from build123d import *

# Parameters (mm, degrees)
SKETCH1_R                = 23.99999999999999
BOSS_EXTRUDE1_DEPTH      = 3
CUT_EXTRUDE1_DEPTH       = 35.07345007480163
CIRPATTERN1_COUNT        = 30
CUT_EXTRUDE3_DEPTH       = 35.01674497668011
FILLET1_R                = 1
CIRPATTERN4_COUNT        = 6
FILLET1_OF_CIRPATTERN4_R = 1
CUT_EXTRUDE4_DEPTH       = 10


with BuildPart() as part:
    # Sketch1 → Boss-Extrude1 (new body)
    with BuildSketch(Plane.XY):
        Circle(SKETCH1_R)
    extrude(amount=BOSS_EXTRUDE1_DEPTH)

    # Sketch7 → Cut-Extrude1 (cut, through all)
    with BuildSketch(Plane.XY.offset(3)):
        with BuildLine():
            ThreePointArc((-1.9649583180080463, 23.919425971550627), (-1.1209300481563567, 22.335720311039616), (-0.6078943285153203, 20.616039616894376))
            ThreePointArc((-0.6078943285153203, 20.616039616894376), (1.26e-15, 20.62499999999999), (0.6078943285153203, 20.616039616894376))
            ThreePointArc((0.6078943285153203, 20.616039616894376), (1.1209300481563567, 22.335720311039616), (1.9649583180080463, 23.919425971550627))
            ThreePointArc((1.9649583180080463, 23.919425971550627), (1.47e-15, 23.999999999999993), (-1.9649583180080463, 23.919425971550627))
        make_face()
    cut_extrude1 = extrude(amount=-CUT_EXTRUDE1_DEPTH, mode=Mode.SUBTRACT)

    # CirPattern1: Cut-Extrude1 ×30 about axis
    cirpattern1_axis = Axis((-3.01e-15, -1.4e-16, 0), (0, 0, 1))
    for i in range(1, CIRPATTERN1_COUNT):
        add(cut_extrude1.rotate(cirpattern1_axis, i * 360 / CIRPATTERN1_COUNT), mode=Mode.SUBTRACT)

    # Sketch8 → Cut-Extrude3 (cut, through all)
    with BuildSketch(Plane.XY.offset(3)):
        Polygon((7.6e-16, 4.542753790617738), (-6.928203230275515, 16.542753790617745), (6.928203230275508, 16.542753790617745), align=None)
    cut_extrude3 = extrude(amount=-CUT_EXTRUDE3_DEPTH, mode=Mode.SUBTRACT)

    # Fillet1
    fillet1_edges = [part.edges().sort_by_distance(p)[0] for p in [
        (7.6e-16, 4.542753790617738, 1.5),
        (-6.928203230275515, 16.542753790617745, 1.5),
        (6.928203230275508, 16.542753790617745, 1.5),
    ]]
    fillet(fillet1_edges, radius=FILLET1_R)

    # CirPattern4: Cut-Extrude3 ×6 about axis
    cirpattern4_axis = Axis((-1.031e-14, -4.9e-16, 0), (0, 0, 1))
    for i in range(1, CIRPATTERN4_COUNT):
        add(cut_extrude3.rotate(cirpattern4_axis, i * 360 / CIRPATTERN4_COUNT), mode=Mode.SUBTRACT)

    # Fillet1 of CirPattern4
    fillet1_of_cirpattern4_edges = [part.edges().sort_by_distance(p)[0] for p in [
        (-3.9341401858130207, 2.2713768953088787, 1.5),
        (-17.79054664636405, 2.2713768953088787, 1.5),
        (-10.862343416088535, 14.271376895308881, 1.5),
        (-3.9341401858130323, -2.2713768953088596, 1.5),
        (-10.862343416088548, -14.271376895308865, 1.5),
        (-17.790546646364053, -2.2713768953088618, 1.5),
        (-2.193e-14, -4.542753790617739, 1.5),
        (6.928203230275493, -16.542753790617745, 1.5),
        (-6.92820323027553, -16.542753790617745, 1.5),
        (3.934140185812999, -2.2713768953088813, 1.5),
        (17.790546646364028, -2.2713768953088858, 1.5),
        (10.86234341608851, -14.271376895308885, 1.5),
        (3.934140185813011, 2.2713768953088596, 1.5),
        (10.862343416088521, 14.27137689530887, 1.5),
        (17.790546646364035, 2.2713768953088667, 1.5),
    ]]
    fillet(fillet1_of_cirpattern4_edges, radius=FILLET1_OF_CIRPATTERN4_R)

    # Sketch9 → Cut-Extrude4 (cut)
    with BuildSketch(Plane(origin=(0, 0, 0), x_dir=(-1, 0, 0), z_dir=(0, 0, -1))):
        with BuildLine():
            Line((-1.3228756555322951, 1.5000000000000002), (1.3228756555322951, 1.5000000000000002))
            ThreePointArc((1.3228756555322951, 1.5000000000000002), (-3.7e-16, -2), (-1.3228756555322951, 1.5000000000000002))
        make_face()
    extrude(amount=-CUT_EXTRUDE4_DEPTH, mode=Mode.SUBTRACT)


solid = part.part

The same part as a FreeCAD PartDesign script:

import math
import FreeCAD as App
import Part
import Sketcher
from FreeCAD import Vector
Q = App.Units.Quantity


def edges_at(feature, points):
    """Names of the edges that pass closest to the given points."""
    edges = feature.Shape.Edges
    near = lambda p: min(range(len(edges)), key=lambda i: edges[i].distToShape(Part.Vertex(*p))[0])
    return sorted({f"Edge{near(p) + 1}" for p in points})

doc = App.newDocument("Part")
body = doc.addObject("PartDesign::Body", "Body")

sketch1 = doc.addObject("Sketcher::SketchObject", "Sketch")
body.addObject(sketch1)
sketch1.AttachmentSupport = (doc.XY_Plane, [""])
sketch1.MapMode = "FlatFace"
sketch1.addGeometry(Part.Circle(Vector(0, 0, 0), Vector(0, 0, 1), 24), False)
sketch1.addConstraint([
    Sketcher.Constraint("Coincident", 0, 3, -1, 1),
    Sketcher.Constraint("Diameter", 0, 48.0),
])
pad1 = doc.addObject("PartDesign::Pad", "Pad")
body.addObject(pad1)
pad1.Profile = sketch1
pad1.Length = 3

sketch2 = doc.addObject("Sketcher::SketchObject", "Sketch001")
body.addObject(sketch2)
sketch2.AttachmentSupport = (doc.XY_Plane, [""])
sketch2.MapMode = "FlatFace"
sketch2.AttachmentOffset = App.Placement(Vector(0, 0, 3), App.Rotation())
sketch2.addGeometry([
    Part.ArcOfCircle(Part.Circle(Vector(-9.4, 18.9, 0), Vector(0, 0, 1), 9), math.radians(11), math.radians(34)),
    Part.ArcOfCircle(Part.Circle(Vector(0, 0, 0), Vector(0, 0, 1), 20.6), math.radians(88.31), math.radians(91.69)),
    Part.ArcOfCircle(Part.Circle(Vector(9.4, 18.9, 0), Vector(0, 0, 1), 9), math.radians(146), math.radians(169)),
    Part.ArcOfCircle(Part.Circle(Vector(0, 0, 0), Vector(0, 0, 1), 24), math.radians(85.3), math.radians(94.7)),
], False)
sketch2.addConstraint([
    Sketcher.Constraint("Coincident", 0, 1, 1, 2),
    Sketcher.Constraint("Coincident", 1, 1, 2, 2),
    Sketcher.Constraint("Coincident", 2, 1, 3, 1),
    Sketcher.Constraint("Coincident", 3, 2, 0, 2),
    Sketcher.Constraint("Coincident", 1, 3, -1, 1),
    Sketcher.Constraint("Coincident", 3, 3, -1, 1),
    Sketcher.Constraint("Equal", 0, 2),
    Sketcher.Constraint("Symmetric", 0, 3, 2, 3, -2),
    Sketcher.Constraint("Radius", 0, 9.0),
    Sketcher.Constraint("Radius", 3, 24.0),
    Sketcher.Constraint("Radius", 1, 20.625),
    Sketcher.Constraint("DistanceX", 0, 3, -1, 1, 9.445829),
    Sketcher.Constraint("DistanceY", -1, 1, 0, 3, 18.915769),
])
pocket1 = doc.addObject("PartDesign::Pocket", "Pocket")
body.addObject(pocket1)
pocket1.Profile = sketch2
pocket1.Type = "ThroughAll"
doc.recompute()

polarpattern = doc.addObject("PartDesign::PolarPattern", "PolarPattern")
body.addObject(polarpattern)
polarpattern.Originals = [pocket1]
polarpattern.Axis = (doc.Z_Axis, [""])
polarpattern.Angle = 360
polarpattern.Occurrences = 30
body.Tip = polarpattern

sketch3 = doc.addObject("Sketcher::SketchObject", "Sketch002")
body.addObject(sketch3)
sketch3.AttachmentSupport = (doc.XY_Plane, [""])
sketch3.MapMode = "FlatFace"
sketch3.AttachmentOffset = App.Placement(Vector(0, 0, 3), App.Rotation())
sketch3.addGeometry([
    Part.LineSegment(Vector(-7, 17, 0), Vector(0, 5, 0)),
    Part.LineSegment(Vector(0, 5, 0), Vector(7, 17, 0)),
    Part.LineSegment(Vector(7, 17, 0), Vector(-7, 17, 0)),
], False)
sketch3.addConstraint([
    Sketcher.Constraint("Coincident", 0, 2, 1, 1),
    Sketcher.Constraint("Coincident", 1, 2, 2, 1),
    Sketcher.Constraint("Coincident", 2, 2, 0, 1),
    Sketcher.Constraint("Horizontal", 2),
    Sketcher.Constraint("PointOnObject", 0, 2, -2),
    Sketcher.Constraint("Equal", 0, 1),
    Sketcher.Constraint("Angle", 0, Q("-60 deg")),
    Sketcher.Constraint("DistanceY", 0, 2, 1, 2, 12.0),
    Sketcher.Constraint("DistanceY", -1, 1, 0, 2, 4.542754),
])
pocket2 = doc.addObject("PartDesign::Pocket", "Pocket001")
body.addObject(pocket2)
pocket2.Profile = sketch3
pocket2.Type = "ThroughAll"
doc.recompute()

fillet = doc.addObject("PartDesign::Fillet", "Fillet")
body.addObject(fillet)
fillet.Base = (pocket2, edges_at(pocket2, [(0, 4.543, 1.5), (-6.928, 16.543, 1.5), (6.928, 16.543, 1.5)]))
fillet.Radius = 1
doc.recompute()

polarpattern2 = doc.addObject("PartDesign::PolarPattern", "PolarPattern001")
body.addObject(polarpattern2)
polarpattern2.Originals = [pocket2]
polarpattern2.Axis = (doc.Z_Axis, [""])
polarpattern2.Angle = 360
polarpattern2.Occurrences = 6
body.Tip = polarpattern2
doc.recompute()

fillet2 = doc.addObject("PartDesign::Fillet", "Fillet001")
body.addObject(fillet2)
fillet2.Base = (polarpattern2, edges_at(polarpattern2, [
    (-3.934, 2.271, 1.5),
    (-17.791, 2.271, 1.5),
    (-10.862, 14.271, 1.5),
    (-3.934, -2.271, 1.5),
    (-10.862, -14.271, 1.5),
    (-17.791, -2.271, 1.5),
    (0, -4.543, 1.5),
    (6.928, -16.543, 1.5),
    (-6.928, -16.543, 1.5),
    (3.934, -2.271, 1.5),
    (17.791, -2.271, 1.5),
    (10.862, -14.271, 1.5),
    (3.934, 2.271, 1.5),
    (10.862, 14.271, 1.5),
    (17.791, 2.271, 1.5),
]))
fillet2.Radius = 1

sketch4 = doc.addObject("Sketcher::SketchObject", "Sketch003")
body.addObject(sketch4)
sketch4.AttachmentSupport = (doc.XY_Plane, [""])
sketch4.MapMode = "FlatFace"
sketch4.addGeometry([
    Part.LineSegment(Vector(-1.3, 1.5, 0), Vector(1.3, 1.5, 0)),
    Part.ArcOfCircle(Part.Circle(Vector(0, 0, 0), Vector(0, 0, 1), 2), math.radians(131), math.radians(409)),
], False)
sketch4.addConstraint([
    Sketcher.Constraint("Coincident", 0, 1, 1, 1),
    Sketcher.Constraint("Coincident", 1, 2, 0, 2),
    Sketcher.Constraint("Horizontal", 0),
    Sketcher.Constraint("Coincident", 1, 3, -1, 1),
    Sketcher.Constraint("Radius", 1, 2.0),
    Sketcher.Constraint("DistanceY", -1, 1, 0, 1, 1.5),
])
pocket3 = doc.addObject("PartDesign::Pocket", "Pocket002")
body.addObject(pocket3)
pocket3.Profile = sketch4
pocket3.Length = 10
pocket3.Reversed = True

doc.recompute()
